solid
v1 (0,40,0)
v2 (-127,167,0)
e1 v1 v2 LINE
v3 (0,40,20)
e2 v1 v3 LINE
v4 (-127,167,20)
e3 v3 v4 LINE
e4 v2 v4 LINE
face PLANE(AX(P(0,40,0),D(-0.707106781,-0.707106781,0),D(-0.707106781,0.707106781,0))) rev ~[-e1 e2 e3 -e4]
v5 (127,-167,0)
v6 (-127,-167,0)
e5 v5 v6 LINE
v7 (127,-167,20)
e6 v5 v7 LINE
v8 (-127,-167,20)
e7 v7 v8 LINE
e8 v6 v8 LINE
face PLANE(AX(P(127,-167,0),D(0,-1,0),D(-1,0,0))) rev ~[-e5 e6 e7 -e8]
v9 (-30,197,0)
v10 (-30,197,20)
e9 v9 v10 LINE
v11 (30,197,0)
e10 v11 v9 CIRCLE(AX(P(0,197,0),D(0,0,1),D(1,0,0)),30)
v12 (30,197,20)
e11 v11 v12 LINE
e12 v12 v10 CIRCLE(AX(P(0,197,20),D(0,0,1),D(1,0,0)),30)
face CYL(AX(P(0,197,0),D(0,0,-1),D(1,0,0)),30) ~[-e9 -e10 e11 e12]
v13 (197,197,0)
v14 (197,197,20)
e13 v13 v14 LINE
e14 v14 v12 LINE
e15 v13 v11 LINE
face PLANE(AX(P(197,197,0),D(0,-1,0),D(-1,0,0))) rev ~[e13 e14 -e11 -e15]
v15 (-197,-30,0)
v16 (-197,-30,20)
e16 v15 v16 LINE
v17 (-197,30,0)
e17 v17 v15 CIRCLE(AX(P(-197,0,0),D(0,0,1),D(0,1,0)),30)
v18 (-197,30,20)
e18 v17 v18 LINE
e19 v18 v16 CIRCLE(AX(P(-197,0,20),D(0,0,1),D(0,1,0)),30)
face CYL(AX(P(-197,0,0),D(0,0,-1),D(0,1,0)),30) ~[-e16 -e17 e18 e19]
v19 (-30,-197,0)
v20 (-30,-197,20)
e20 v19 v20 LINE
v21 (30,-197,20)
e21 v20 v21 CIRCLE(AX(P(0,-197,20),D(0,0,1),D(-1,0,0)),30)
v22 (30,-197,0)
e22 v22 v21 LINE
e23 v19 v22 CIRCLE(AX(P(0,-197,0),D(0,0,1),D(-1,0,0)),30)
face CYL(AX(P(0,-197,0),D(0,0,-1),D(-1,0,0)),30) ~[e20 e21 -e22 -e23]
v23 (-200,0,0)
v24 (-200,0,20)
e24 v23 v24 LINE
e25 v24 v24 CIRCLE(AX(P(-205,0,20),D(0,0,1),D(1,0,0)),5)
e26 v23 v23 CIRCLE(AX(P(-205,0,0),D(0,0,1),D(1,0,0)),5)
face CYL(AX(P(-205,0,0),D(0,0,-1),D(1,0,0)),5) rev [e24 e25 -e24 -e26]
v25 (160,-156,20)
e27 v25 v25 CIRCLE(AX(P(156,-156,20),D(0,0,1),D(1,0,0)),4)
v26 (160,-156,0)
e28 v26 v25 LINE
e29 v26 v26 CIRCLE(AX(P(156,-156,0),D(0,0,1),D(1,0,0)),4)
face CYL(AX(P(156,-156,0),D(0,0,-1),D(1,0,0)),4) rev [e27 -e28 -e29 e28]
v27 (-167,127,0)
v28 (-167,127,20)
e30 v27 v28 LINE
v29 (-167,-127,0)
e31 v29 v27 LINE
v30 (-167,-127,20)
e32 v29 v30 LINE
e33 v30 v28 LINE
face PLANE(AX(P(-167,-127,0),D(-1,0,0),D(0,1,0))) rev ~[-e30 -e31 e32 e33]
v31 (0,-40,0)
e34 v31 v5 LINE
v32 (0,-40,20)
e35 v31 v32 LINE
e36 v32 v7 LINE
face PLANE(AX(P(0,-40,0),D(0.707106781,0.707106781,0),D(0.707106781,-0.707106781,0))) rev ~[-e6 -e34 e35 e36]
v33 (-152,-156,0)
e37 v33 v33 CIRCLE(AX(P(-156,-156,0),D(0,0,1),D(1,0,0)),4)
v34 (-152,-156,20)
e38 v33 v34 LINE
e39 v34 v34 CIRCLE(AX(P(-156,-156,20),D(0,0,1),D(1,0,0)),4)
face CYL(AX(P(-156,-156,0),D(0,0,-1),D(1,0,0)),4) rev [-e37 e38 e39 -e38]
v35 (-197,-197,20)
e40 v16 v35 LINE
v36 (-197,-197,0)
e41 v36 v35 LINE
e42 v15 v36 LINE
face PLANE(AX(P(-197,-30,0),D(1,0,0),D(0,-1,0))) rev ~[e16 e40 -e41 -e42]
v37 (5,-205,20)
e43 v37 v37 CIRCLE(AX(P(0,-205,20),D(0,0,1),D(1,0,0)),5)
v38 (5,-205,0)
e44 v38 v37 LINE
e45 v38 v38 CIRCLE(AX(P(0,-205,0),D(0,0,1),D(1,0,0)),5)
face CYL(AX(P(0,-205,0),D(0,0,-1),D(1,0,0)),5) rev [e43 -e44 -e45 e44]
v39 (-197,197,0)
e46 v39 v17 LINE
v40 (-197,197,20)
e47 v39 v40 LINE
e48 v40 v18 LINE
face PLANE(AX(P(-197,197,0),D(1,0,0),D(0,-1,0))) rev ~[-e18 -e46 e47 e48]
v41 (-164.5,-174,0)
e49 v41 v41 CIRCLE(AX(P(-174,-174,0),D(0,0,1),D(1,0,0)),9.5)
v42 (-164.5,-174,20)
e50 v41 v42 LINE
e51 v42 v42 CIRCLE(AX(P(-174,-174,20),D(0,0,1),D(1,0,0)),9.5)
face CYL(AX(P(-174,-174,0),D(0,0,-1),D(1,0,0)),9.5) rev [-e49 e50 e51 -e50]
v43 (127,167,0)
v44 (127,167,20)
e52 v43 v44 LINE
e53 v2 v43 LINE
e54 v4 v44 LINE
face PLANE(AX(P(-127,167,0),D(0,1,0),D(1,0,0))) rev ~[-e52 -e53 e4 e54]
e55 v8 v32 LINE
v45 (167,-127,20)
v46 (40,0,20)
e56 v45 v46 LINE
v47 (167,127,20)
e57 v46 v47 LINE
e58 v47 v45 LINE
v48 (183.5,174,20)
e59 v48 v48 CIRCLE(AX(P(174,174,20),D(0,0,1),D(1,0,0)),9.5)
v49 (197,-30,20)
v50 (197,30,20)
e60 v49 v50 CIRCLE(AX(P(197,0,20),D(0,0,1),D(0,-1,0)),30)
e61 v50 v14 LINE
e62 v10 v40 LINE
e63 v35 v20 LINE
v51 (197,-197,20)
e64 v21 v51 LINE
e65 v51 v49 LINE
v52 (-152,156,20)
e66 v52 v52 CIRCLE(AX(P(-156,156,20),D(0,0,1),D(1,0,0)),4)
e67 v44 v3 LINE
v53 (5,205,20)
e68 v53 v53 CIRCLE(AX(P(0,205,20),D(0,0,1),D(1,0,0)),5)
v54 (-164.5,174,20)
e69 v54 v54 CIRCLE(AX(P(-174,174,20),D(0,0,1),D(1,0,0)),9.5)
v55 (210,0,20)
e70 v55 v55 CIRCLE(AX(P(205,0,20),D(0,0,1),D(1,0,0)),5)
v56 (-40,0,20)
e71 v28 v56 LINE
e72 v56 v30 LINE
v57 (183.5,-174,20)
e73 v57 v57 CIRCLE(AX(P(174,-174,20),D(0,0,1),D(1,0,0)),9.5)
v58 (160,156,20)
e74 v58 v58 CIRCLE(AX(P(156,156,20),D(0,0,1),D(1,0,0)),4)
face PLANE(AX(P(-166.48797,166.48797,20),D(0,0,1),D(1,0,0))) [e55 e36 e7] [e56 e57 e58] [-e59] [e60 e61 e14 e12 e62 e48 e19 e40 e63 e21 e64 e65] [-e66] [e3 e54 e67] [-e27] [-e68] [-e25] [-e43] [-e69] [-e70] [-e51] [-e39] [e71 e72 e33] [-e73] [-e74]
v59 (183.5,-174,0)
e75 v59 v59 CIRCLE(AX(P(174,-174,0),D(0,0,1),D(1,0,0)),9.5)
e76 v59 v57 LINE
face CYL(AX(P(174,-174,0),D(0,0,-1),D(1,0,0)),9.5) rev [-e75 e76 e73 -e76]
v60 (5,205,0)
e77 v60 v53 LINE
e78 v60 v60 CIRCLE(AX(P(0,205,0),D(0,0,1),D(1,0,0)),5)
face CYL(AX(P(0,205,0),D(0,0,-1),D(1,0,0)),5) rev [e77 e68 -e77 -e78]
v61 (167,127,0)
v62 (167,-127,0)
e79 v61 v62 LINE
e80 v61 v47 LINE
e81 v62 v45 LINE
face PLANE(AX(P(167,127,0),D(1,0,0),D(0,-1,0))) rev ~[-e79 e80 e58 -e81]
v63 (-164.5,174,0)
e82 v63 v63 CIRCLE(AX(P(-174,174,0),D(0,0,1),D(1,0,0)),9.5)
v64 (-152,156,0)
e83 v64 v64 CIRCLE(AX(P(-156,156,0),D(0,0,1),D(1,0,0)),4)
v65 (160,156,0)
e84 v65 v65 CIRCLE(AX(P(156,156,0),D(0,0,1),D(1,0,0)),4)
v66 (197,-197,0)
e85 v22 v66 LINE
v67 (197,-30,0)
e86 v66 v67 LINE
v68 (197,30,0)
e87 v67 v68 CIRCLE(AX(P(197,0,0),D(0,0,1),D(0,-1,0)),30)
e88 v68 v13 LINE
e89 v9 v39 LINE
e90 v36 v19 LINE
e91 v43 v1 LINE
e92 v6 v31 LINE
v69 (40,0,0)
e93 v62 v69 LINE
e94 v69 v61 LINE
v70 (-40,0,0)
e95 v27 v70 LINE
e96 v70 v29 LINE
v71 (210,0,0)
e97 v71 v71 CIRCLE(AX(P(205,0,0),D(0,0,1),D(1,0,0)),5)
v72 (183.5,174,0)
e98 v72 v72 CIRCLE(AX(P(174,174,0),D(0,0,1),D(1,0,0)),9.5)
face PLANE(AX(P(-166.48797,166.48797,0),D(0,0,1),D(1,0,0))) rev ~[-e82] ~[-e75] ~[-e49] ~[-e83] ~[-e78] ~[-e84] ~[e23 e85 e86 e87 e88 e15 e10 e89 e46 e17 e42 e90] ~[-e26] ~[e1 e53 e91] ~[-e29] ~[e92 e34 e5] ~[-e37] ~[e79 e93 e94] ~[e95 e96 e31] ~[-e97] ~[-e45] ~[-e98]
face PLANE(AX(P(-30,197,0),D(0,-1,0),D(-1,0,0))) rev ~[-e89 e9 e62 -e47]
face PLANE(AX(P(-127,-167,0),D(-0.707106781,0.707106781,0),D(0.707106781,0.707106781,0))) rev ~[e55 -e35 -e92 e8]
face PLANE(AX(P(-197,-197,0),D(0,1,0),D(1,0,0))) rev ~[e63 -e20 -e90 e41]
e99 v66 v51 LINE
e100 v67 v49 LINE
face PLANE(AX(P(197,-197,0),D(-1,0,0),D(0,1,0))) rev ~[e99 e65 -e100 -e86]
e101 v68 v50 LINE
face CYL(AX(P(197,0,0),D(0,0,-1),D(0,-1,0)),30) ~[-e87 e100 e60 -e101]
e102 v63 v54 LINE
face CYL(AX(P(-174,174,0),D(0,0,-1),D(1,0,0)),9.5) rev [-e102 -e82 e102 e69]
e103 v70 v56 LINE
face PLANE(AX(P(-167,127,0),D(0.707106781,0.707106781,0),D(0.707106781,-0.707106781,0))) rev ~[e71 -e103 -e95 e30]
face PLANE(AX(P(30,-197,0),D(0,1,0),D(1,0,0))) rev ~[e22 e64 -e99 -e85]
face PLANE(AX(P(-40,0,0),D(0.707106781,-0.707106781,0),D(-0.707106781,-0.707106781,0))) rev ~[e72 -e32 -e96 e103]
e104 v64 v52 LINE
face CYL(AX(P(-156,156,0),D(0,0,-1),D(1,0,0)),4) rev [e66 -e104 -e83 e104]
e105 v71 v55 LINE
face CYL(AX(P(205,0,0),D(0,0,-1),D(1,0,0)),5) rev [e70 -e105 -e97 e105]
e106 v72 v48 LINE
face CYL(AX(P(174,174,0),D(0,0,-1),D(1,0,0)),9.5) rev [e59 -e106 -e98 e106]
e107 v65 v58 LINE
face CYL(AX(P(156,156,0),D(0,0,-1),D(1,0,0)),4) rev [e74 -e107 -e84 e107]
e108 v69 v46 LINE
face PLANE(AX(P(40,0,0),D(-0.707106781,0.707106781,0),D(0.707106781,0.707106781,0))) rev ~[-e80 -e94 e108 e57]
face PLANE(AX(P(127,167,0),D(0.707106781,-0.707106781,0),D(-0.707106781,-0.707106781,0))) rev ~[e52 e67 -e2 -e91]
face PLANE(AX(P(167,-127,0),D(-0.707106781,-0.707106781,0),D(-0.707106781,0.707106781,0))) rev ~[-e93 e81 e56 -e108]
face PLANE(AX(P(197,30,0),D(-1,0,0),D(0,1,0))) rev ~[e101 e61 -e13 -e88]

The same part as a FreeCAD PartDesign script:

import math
import FreeCAD as App
import Part
import Sketcher
from FreeCAD import Vector

doc = App.newDocument("Part")
body = doc.addObject("PartDesign::Body", "Body")

# Sketch on XY plane
sketch1 = body.newObject("Sketcher::SketchObject", "Sketch")
sketch1.AttachmentSupport = (doc.getObject("XY_Plane"), [""])
sketch1.MapMode = "FlatFace"
sketch1.addGeometry([
    Part.LineSegment(Vector(-197, 197, 0), Vector(-197, 30, 0)),  # 0
    Part.ArcOfCircle(Part.Circle(Vector(-197, 0, 0), Vector(0, 0, 1), 30), math.radians(90), math.radians(270)),  # 1
    Part.LineSegment(Vector(-197, -30, 0), Vector(-197, -197, 0)),  # 2
    Part.LineSegment(Vector(-197, -197, 0), Vector(-30, -197, 0)),  # 3
    Part.ArcOfCircle(Part.Circle(Vector(0, -197, 0), Vector(0, 0, 1), 30), math.radians(180), math.radians(360)),  # 4
    Part.LineSegment(Vector(30, -197, 0), Vector(197, -197, 0)),  # 5
    Part.LineSegment(Vector(197, -197, 0), Vector(197, -30, 0)),  # 6
    Part.ArcOfCircle(Part.Circle(Vector(197, 0, 0), Vector(0, 0, 1), 30), math.radians(-90), math.radians(90)),  # 7
    Part.LineSegment(Vector(197, 30, 0), Vector(197, 197, 0)),  # 8
    Part.LineSegment(Vector(197, 197, 0), Vector(30, 197, 0)),  # 9
    Part.ArcOfCircle(Part.Circle(Vector(0, 197, 0), Vector(0, 0, 1), 30), math.radians(0), math.radians(180)),  # 10
    Part.LineSegment(Vector(-30, 197, 0), Vector(-197, 197, 0)),  # 11
    Part.Circle(Vector(-174, -174, 0), Vector(0, 0, 1), 9.5),  # 12
    Part.Circle(Vector(-156, -156, 0), Vector(0, 0, 1), 4),  # 13
    Part.Circle(Vector(0, -205, 0), Vector(0, 0, 1), 5),  # 14
    Part.Circle(Vector(174, -174, 0), Vector(0, 0, 1), 9.5),  # 15
    Part.Circle(Vector(156, -156, 0), Vector(0, 0, 1), 4),  # 16
    Part.LineSegment(Vector(-127, -167, 0), Vector(0, -40, 0)),  # 17
    Part.LineSegment(Vector(0, -40, 0), Vector(127, -167, 0)),  # 18
    Part.LineSegment(Vector(127, -167, 0), Vector(-127, -167, 0)),  # 19
    Part.Circle(Vector(-205, 0, 0), Vector(0, 0, 1), 5),  # 20
    Part.LineSegment(Vector(-167, 127, 0), Vector(-40, 0, 0)),  # 21
    Part.LineSegment(Vector(-40, 0, 0), Vector(-167, -127, 0)),  # 22
    Part.LineSegment(Vector(-167, -127, 0), Vector(-167, 127, 0)),  # 23
    Part.Circle(Vector(-156, 156, 0), Vector(0, 0, 1), 4),  # 24
    Part.Circle(Vector(-174, 174, 0), Vector(0, 0, 1), 9.5),  # 25
    Part.LineSegment(Vector(167, -127, 0), Vector(40, 0, 0)),  # 26
    Part.LineSegment(Vector(40, 0, 0), Vector(167, 127, 0)),  # 27
    Part.LineSegment(Vector(167, 127, 0), Vector(167, -127, 0)),  # 28
    Part.LineSegment(Vector(0, 40, 0), Vector(-127, 167, 0)),  # 29
    Part.LineSegment(Vector(-127, 167, 0), Vector(127, 167, 0)),  # 30
    Part.LineSegment(Vector(127, 167, 0), Vector(0, 40, 0)),  # 31
    Part.Circle(Vector(205, 0, 0), Vector(0, 0, 1), 5),  # 32
    Part.Circle(Vector(0, 205, 0), Vector(0, 0, 1), 5),  # 33
    Part.Circle(Vector(156, 156, 0), Vector(0, 0, 1), 4),  # 34
    Part.Circle(Vector(174, 174, 0), Vector(0, 0, 1), 9.5),  # 35
], False)
sketch1.addConstraint([
    Sketcher.Constraint("Coincident", 0, 2, 1, 1),
    Sketcher.Constraint("Coincident", 1, 2, 2, 1),
    Sketcher.Constraint("Coincident", 2, 2, 3, 1),
    Sketcher.Constraint("Coincident", 3, 2, 4, 1),
    Sketcher.Constraint("Coincident", 4, 2, 5, 1),
    Sketcher.Constraint("Coincident", 5, 2, 6, 1),
    Sketcher.Constraint("Coincident", 6, 2, 7, 1),
    Sketcher.Constraint("Coincident", 7, 2, 8, 1),
    Sketcher.Constraint("Coincident", 8, 2, 9, 1),
    Sketcher.Constraint("Coincident", 9, 2, 10, 1),
    Sketcher.Constraint("Coincident", 10, 2, 11, 1),
    Sketcher.Constraint("Coincident", 11, 2, 0, 1),
    Sketcher.Constraint("Coincident", 17, 2, 18, 1),
    Sketcher.Constraint("Coincident", 18, 2, 19, 1),
    Sketcher.Constraint("Coincident", 19, 2, 17, 1),
    Sketcher.Constraint("Coincident", 21, 2, 22, 1),
    Sketcher.Constraint("Coincident", 22, 2, 23, 1),
    Sketcher.Constraint("Coincident", 23, 2, 21, 1),
    Sketcher.Constraint("Coincident", 26, 2, 27, 1),
    Sketcher.Constraint("Coincident", 27, 2, 28, 1),
    Sketcher.Constraint("Coincident", 28, 2, 26, 1),
    Sketcher.Constraint("Coincident", 29, 2, 30, 1),
    Sketcher.Constraint("Coincident", 30, 2, 31, 1),
    Sketcher.Constraint("Coincident", 31, 2, 29, 1),
    Sketcher.Constraint("Vertical", 0),
    Sketcher.Constraint("Vertical", 2),
    Sketcher.Constraint("Horizontal", 3),
    Sketcher.Constraint("Horizontal", 5),
    Sketcher.Constraint("Vertical", 6),
    Sketcher.Constraint("Vertical", 8),
    Sketcher.Constraint("Horizontal", 9),
    Sketcher.Constraint("Horizontal", 11),
    Sketcher.Constraint("Horizontal", 19),
    Sketcher.Constraint("Vertical", 23),
    Sketcher.Constraint("Vertical", 28),
    Sketcher.Constraint("Horizontal", 30),
    Sketcher.Constraint("Equal", 1, 4),
    Sketcher.Constraint("Equal", 4, 7),
    Sketcher.Constraint("Equal", 7, 10),
    Sketcher.Constraint("Equal", 12, 15),
    Sketcher.Constraint("Equal", 13, 16),
    Sketcher.Constraint("Equal", 14, 20),
    Sketcher.Constraint("Equal", 16, 24),
    Sketcher.Constraint("Equal", 15, 25),
    Sketcher.Constraint("Equal", 20, 32),
    Sketcher.Constraint("Equal", 32, 33),
    Sketcher.Constraint("Equal", 24, 34),
    Sketcher.Constraint("Equal", 25, 35),
    Sketcher.Constraint("Symmetric", 1, 3, 7, 3, -1, 1),
    Sketcher.Constraint("Symmetric", 4, 3, 10, 3, -1, 1),
    Sketcher.Constraint("Symmetric", 16, 3, 24, 3, -1, 1),
    Sketcher.Constraint("Symmetric", 15, 3, 25, 3, -1, 1),
    Sketcher.Constraint("Symmetric", 20, 3, 32, 3, -1, 1),
    Sketcher.Constraint("Symmetric", 14, 3, 33, 3, -1, 1),
    Sketcher.Constraint("Symmetric", 13, 3, 34, 3, -1, 1),
    Sketcher.Constraint("Symmetric", 12, 3, 35, 3, -1, 1),
    Sketcher.Constraint("Symmetric", 2, 2, 8, 2, -1, 1),
    Sketcher.Constraint("Symmetric", 5, 2, 11, 2, -1, 1),
    Sketcher.Constraint("Symmetric", 21, 2, 26, 2, -1, 1),
    Sketcher.Constraint("Symmetric", 22, 2, 27, 2, -1, 1),
    Sketcher.Constraint("Symmetric", 18, 2, 29, 2, -1, 1),
    Sketcher.Constraint("Symmetric", 17, 2, 31, 2, -1, 1),
    Sketcher.Constraint("Symmetric", 12, 3, 15, 3, -2),
    Sketcher.Constraint("Symmetric", 13, 3, 16, 3, -2),
    Sketcher.Constraint("Symmetric", 3, 2, 4, 2, -2),
    Sketcher.Constraint("Symmetric", 1, 2, 6, 2, -2),
    Sketcher.Constraint("PointOnObject", 14, 3, -2),
    Sketcher.Constraint("PointOnObject", 20, 3, -1),
    Sketcher.Constraint("PointOnObject", 17, 2, -2),
    Sketcher.Constraint("PointOnObject", 21, 2, -1),
    Sketcher.Constraint("Perpendicular", 17, 18),
    Sketcher.Constraint("Parallel", 18, 21),
    Sketcher.Constraint("Perpendicular", 21, 22),
    Sketcher.Constraint("Perpendicular", 22, 26),
    Sketcher.Constraint("Perpendicular", 29, 31),
    Sketcher.Constraint("Horizontal", 4, 3, 2, 2),
    Sketcher.Constraint("Horizontal", 23, 2, 27, 2),
    Sketcher.Constraint("Vertical", 1, 3, 0, 2),
    Sketcher.Constraint("Equal", 11, 0),
    Sketcher.Constraint("Equal", 30, 23),
    Sketcher.Constraint("Diameter", 12, 19.0),
    Sketcher.Constraint("Diameter", 13, 8.0),
    Sketcher.Constraint("Diameter", 14, 10.0),
    Sketcher.Constraint("Radius", 1, 30.0),
    Sketcher.Constraint("DistanceX", 3, 1, 3, 2, 167.0),
    Sketcher.Constraint("DistanceX", 19, 2, 19, 1, 254.0),
    Sketcher.Constraint("DistanceX", 12, 3, -1, 1, 174.0),
    Sketcher.Constraint("DistanceY", 12, 3, -1, 1, 174.0),
    Sketcher.Constraint("DistanceX", 13, 3, -1, 1, 156.0),
    Sketcher.Constraint("DistanceY", 13, 3, -1, 1, 156.0),
    Sketcher.Constraint("DistanceY", 14, 3, -1, 1, 205.0),
    Sketcher.Constraint("DistanceX", 20, 3, -1, 1, 205.0),
    Sketcher.Constraint("DistanceY", 17, 2, -1, 1, 40.0),
    Sketcher.Constraint("DistanceX", 21, 2, -1, 1, 40.0),
])
pad1 = body.newObject("PartDesign::Pad", "Pad")
pad1.Profile = sketch1
pad1.Length = 20

doc.recompute()
